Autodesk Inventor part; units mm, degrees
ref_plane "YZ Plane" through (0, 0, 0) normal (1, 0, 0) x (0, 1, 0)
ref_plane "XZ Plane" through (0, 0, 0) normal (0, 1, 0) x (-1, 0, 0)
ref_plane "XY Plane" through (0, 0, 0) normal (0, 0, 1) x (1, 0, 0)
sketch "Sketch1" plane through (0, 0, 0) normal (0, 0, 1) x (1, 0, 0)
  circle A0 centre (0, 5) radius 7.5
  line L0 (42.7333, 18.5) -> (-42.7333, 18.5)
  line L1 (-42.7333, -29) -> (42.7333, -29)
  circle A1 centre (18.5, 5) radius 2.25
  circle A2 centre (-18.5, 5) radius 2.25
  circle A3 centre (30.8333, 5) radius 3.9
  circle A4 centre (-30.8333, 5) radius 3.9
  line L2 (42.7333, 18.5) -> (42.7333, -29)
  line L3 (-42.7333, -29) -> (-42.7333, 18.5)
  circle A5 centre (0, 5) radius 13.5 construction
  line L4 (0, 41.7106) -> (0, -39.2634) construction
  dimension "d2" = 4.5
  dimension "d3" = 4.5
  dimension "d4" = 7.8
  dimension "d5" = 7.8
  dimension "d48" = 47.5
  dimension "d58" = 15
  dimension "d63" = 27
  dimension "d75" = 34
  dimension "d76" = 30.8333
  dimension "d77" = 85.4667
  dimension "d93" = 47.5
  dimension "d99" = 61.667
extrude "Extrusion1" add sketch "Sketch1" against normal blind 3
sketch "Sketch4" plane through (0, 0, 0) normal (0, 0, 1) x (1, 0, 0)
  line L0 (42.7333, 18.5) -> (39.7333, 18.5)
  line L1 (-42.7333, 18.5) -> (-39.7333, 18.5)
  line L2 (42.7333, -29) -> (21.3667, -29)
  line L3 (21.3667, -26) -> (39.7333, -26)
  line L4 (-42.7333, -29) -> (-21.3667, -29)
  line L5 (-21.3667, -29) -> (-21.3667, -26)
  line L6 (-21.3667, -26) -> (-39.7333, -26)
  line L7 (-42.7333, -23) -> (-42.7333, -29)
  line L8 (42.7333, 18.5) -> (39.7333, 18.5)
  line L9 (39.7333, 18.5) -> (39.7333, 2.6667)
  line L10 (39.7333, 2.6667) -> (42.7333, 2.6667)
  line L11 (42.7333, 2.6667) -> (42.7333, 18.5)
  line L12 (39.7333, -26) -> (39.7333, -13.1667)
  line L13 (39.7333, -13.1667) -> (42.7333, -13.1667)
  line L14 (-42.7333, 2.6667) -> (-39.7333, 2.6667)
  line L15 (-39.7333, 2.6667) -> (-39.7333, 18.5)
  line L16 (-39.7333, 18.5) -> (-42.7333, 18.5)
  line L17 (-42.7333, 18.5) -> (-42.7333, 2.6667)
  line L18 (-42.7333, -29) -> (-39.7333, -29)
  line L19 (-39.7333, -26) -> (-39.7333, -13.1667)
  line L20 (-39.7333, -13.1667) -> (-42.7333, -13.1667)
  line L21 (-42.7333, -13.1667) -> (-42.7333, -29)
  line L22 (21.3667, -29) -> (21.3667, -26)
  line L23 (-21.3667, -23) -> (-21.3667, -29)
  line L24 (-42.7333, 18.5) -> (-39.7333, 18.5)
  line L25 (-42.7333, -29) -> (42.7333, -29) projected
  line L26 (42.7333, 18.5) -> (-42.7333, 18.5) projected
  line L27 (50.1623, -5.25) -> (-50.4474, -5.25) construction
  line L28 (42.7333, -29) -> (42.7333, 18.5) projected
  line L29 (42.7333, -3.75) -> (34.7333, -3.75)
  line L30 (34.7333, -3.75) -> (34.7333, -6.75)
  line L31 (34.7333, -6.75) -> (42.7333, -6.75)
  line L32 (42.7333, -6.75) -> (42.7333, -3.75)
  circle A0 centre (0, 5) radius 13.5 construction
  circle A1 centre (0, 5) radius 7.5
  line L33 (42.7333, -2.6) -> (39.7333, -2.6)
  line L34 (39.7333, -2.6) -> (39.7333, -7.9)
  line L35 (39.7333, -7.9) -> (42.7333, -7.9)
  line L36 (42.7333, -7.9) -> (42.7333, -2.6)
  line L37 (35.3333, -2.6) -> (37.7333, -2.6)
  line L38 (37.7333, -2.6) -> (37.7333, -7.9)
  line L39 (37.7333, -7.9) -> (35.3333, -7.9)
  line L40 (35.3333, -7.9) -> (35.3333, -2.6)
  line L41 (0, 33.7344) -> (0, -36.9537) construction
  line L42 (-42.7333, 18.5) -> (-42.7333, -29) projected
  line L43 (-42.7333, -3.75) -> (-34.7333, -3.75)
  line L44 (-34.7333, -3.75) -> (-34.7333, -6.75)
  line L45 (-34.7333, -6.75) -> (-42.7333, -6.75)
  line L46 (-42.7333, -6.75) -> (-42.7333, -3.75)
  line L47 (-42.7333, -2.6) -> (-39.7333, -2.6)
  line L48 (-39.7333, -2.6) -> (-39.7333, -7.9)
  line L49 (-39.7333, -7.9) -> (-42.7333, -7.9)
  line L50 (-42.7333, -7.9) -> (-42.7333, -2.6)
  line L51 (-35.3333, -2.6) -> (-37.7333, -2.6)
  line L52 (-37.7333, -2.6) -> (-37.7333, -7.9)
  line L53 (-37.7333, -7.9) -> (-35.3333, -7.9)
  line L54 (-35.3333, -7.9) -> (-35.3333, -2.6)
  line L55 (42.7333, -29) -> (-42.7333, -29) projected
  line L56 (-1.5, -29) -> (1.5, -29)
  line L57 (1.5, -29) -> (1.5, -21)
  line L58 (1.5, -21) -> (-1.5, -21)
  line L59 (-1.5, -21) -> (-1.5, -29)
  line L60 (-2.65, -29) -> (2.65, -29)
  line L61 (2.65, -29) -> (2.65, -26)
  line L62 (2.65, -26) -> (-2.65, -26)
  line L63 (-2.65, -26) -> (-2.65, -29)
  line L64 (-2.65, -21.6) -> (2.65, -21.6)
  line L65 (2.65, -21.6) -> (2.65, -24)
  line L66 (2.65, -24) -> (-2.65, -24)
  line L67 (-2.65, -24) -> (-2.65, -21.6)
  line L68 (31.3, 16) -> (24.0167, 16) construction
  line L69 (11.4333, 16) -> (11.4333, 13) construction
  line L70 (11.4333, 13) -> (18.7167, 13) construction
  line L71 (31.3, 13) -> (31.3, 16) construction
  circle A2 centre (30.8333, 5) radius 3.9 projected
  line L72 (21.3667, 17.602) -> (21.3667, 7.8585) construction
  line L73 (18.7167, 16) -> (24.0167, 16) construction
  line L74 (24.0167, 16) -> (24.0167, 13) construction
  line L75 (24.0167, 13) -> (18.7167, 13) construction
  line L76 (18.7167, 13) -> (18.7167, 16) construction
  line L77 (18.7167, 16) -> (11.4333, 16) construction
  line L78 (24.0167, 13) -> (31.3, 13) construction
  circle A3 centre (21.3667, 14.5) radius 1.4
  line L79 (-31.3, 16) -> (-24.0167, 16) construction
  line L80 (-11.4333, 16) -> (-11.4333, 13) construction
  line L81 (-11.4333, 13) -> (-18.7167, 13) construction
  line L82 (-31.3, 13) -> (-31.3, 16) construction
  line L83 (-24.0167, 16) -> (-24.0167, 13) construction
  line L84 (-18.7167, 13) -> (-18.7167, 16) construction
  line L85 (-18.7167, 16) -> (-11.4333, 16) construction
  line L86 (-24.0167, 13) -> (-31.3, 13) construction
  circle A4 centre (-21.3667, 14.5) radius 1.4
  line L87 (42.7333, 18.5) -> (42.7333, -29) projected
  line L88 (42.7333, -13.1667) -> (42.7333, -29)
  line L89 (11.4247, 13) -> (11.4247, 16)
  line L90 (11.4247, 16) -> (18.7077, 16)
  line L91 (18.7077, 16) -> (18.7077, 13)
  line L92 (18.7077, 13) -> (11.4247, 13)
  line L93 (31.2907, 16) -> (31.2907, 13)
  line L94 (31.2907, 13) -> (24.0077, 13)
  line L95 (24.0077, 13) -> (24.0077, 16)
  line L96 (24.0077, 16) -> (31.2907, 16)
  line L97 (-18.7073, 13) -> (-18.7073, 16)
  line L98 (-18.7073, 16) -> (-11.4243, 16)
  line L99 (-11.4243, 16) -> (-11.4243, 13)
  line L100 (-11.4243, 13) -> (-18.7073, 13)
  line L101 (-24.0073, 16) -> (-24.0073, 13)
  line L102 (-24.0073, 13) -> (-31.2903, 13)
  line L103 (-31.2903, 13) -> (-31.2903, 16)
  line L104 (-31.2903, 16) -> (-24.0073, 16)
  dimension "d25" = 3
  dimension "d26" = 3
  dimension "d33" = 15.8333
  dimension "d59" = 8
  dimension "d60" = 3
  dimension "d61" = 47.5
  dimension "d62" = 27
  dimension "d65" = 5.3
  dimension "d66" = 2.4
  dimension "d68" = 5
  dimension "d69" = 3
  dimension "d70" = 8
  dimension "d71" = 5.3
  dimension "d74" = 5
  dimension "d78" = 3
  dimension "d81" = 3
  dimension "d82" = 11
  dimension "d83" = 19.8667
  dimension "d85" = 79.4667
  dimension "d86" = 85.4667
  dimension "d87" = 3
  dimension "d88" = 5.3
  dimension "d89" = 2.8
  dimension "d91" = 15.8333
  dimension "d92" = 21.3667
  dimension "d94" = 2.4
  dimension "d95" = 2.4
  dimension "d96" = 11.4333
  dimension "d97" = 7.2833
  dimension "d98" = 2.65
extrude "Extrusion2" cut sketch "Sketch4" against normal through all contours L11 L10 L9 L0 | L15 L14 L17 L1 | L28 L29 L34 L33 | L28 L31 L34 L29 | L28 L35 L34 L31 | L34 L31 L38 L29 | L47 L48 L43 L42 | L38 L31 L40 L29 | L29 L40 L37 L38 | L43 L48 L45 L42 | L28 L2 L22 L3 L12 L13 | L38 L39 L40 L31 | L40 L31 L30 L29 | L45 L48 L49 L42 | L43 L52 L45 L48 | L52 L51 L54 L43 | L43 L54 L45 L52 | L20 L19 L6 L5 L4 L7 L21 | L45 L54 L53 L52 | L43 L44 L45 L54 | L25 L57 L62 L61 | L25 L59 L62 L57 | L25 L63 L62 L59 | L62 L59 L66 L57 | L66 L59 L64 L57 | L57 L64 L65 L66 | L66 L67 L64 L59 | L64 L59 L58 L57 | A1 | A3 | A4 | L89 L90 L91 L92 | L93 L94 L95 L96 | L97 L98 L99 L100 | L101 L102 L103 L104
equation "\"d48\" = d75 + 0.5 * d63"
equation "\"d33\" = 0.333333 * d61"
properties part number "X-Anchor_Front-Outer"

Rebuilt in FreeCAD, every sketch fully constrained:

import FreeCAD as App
import Part
import Sketcher

V = App.Vector


def add_polygon(sketch, points):
    """Adds a closed chain of lines whose ends are joined by coincident constraints."""
    first, n = sketch.GeometryCount, len(points)
    for a, b in zip(points, points[1:] + points[:1]):
        sketch.addGeometry(Part.LineSegment(App.Vector(*a, 0), App.Vector(*b, 0)), False)
    for i in range(n):
        sketch.addConstraint(Sketcher.Constraint("Coincident", first + i, 2, first + (i + 1) % n, 1))

doc = App.newDocument("Part")
params = doc.addObject("Spreadsheet::Sheet", "Params")
for row, (alias, value) in enumerate([
    ("sketch1_diameter", "15 mm"),
    ("sketch1_diameter2", "7.8 mm"),
    ("sketch1_diameter3", "4.5 mm"),
    ("sketch1_height", "47.5 mm"),
    ("pad1_length", "3 mm"),
    ("sketch2_diameter", "2.8 mm"),
    ("sketch2_width", "3 mm"),
    ("sketch2_diameter2", "15 mm"),
    ("sketch2_width2", "2.4 mm"),
    ("sketch2_width3", "5.3 mm"),
], start=1):
    params.set(f"A{row}", alias)
    params.set(f"B{row}", "=" + value)
    params.setAlias(f"B{row}", alias)

body = doc.addObject("PartDesign::Body", "Body")

# Sketch on XY plane
sketch1 = doc.addObject("Sketcher::SketchObject", "Sketch")
body.addObject(sketch1)
sketch1.AttachmentSupport = (doc.XY_Plane, [""])
sketch1.MapMode = "FlatFace"
add_polygon(sketch1, [(42.7, -29), (42.7, 18.5), (-42.7, 18.5), (-42.7, -29)])  # lines 0-3
sketch1.addGeometry(Part.Circle(V(-30.8, 5, 0), V(0, 0, 1), 3.9), False)  # 4
sketch1.addGeometry(Part.Circle(V(-18.5, 5, 0), V(0, 0, 1), 2.2), False)  # 5
sketch1.addGeometry(Part.Circle(V(0, 5, 0), V(0, 0, 1), 7.5), False)  # 6
sketch1.addGeometry(Part.Circle(V(18.5, 5, 0), V(0, 0, 1), 2.2), False)  # 7
sketch1.addGeometry(Part.Circle(V(30.8, 5, 0), V(0, 0, 1), 3.9), False)  # 8
sketch1.addConstraint(Sketcher.Constraint("Vertical", 0))
sketch1.addConstraint(Sketcher.Constraint("Horizontal", 1))
sketch1.addConstraint(Sketcher.Constraint("Vertical", 2))
sketch1.addConstraint(Sketcher.Constraint("Horizontal", 3))
sketch1.addConstraint(Sketcher.Constraint("Equal", 5, 7))
sketch1.addConstraint(Sketcher.Constraint("Equal", 4, 8))
sketch1.addConstraint(Sketcher.Constraint("Symmetric", 5, 3, 7, 3, -2))
sketch1.addConstraint(Sketcher.Constraint("Symmetric", 4, 3, 8, 3, -2))
sketch1.addConstraint(Sketcher.Constraint("PointOnObject", 6, 3, -2))
sketch1.addConstraint(Sketcher.Constraint("Horizontal", 4, 3, 5, 3))
sketch1.addConstraint(Sketcher.Constraint("Horizontal", 5, 3, 6, 3))
sketch1.addConstraint(Sketcher.Constraint("Diameter", 6, 15.0))
sketch1.addConstraint(Sketcher.Constraint("Diameter", 4, 7.8))
sketch1.addConstraint(Sketcher.Constraint("Diameter", 5, 4.5))
sketch1.addConstraint(Sketcher.Constraint("DistanceY", 0, 1, 0, 2, 47.5))
sketch1.addConstraint(Sketcher.Constraint("DistanceY", 2, 2, 4, 3, 34.0))
sketch1.addConstraint(Sketcher.Constraint("DistanceX", 1, 2, 1, 1, 85.4666))
sketch1.addConstraint(Sketcher.Constraint("DistanceY", -1, 1, 4, 3, 5.0))
sketch1.addConstraint(Sketcher.Constraint("DistanceX", 5, 3, 7, 3, 37.0))
sketch1.addConstraint(Sketcher.Constraint("DistanceX", 4, 3, -1, 1, 30.8333))
sketch1.addConstraint(Sketcher.Constraint("DistanceX", 8, 3, 0, 2, 11.9))
sketch1.setExpression("Constraints[15]", "Params.sketch1_diameter")
sketch1.setExpression("Constraints[16]", "Params.sketch1_diameter2")
sketch1.setExpression("Constraints[17]", "Params.sketch1_diameter3")
sketch1.setExpression("Constraints[18]", "Params.sketch1_height")
pad1 = doc.addObject("PartDesign::Pad", "Pad")
body.addObject(pad1)
pad1.Profile = sketch1
pad1.setExpression("Length", "Params.pad1_length")
pad1.Reversed = True

# Sketch on XY plane
sketch2 = doc.addObject("Sketcher::SketchObject", "Sketch001")
body.addObject(sketch2)
sketch2.AttachmentSupport = (doc.XY_Plane, [""])
sketch2.MapMode = "FlatFace"
add_polygon(sketch2, [(42.7, 2.7), (42.7, 18.5), (39.7, 18.5), (39.7, 2.7)])  # lines 0-3
add_polygon(sketch2, [(-39.7, 2.7), (-39.7, 18.5), (-42.7, 18.5), (-42.7, 2.7)])  # lines 4-7
add_polygon(sketch2, [(42.7, -2.6), (39.7, -2.6), (39.7, -3.8), (37.7, -3.8), (37.7, -2.6), (35.3, -2.6), (35.3, -3.8), (34.7, -3.8), (34.7, -6.8), (35.3, -6.8), (35.3, -7.9), (37.7, -7.9), (37.7, -6.8), (39.7, -6.8), (39.7, -7.9), (42.7, -7.9)])  # lines 8-23
add_polygon(sketch2, [(-39.7, -2.6), (-42.7, -2.6), (-42.7, -7.9), (-39.7, -7.9), (-39.7, -6.8), (-37.7, -6.8), (-37.7, -7.9), (-35.3, -7.9), (-35.3, -6.8), (-34.7, -6.8), (-34.7, -3.8), (-35.3, -3.8), (-35.3, -2.6), (-37.7, -2.6), (-37.7, -3.8), (-39.7, -3.8)])  # lines 24-39
add_polygon(sketch2, [(42.7, -29), (42.7, -13.2), (39.7, -13.2), (39.7, -26), (21.4, -26), (21.4, -29)])  # lines 40-45
add_polygon(sketch2, [(-39.7, -13.2), (-42.7, -13.2), (-42.7, -29), (-21.4, -29), (-21.4, -26), (-39.7, -26)])  # lines 46-51
add_polygon(sketch2, [(2.6, -29), (2.6, -26), (1.5, -26), (1.5, -24), (2.6, -24), (2.6, -21.6), (1.5, -21.6), (1.5, -21), (-1.5, -21), (-1.5, -21.6), (-2.6, -21.6), (-2.6, -24), (-1.5, -24), (-1.5, -26), (-2.6, -26), (-2.6, -29)])  # lines 52-67
sketch2.addGeometry(Part.Circle(V(0, 5, 0), V(0, 0, 1), 7.5), False)  # 68
sketch2.addGeometry(Part.Circle(V(21.4, 14.5, 0), V(0, 0, 1), 1.4), False)  # 69
sketch2.addGeometry(Part.Circle(V(-21.4, 14.5, 0), V(0, 0, 1), 1.4), False)  # 70
add_polygon(sketch2, [(11.4, 16), (11.4, 13), (18.7, 13), (18.7, 16)])  # lines 71-74
add_polygon(sketch2, [(31.3, 13), (31.3, 16), (24, 16), (24, 13)])  # lines 75-78
add_polygon(sketch2, [(-18.7, 16), (-18.7, 13), (-11.4, 13), (-11.4, 16)])  # lines 79-82
add_polygon(sketch2, [(-24, 13), (-24, 16), (-31.3, 16), (-31.3, 13)])  # lines 83-86
sketch2.addConstraint(Sketcher.Constraint("Vertical", 0))
sketch2.addConstraint(Sketcher.Constraint("Horizontal", 1))
sketch2.addConstraint(Sketcher.Constraint("Vertical", 2))
sketch2.addConstraint(Sketcher.Constraint("Horizontal", 3))
sketch2.addConstraint(Sketcher.Constraint("Vertical", 4))
sketch2.addConstraint(Sketcher.Constraint("Horizontal", 5))
sketch2.addConstraint(Sketcher.Constraint("Vertical", 6))
sketch2.addConstraint(Sketcher.Constraint("Horizontal", 7))
sketch2.addConstraint(Sketcher.Constraint("Horizontal", 8))
sketch2.addConstraint(Sketcher.Constraint("Vertical", 9))
sketch2.addConstraint(Sketcher.Constraint("Horizontal", 10))
sketch2.addConstraint(Sketcher.Constraint("Vertical", 11))
sketch2.addConstraint(Sketcher.Constraint("Horizontal", 12))
sketch2.addConstraint(Sketcher.Constraint("Vertical", 13))
sketch2.addConstraint(Sketcher.Constraint("Horizontal", 14))
sketch2.addConstraint(Sketcher.Constraint("Vertical", 15))
sketch2.addConstraint(Sketcher.Constraint("Horizontal", 16))
sketch2.addConstraint(Sketcher.Constraint("Vertical", 17))
sketch2.addConstraint(Sketcher.Constraint("Horizontal", 18))
sketch2.addConstraint(Sketcher.Constraint("Vertical", 19))
sketch2.addConstraint(Sketcher.Constraint("Horizontal", 20))
sketch2.addConstraint(Sketcher.Constraint("Vertical", 21))
sketch2.addConstraint(Sketcher.Constraint("Horizontal", 22))
sketch2.addConstraint(Sketcher.Constraint("Vertical", 23))
sketch2.addConstraint(Sketcher.Constraint("Horizontal", 24))
sketch2.addConstraint(Sketcher.Constraint("Vertical", 25))
sketch2.addConstraint(Sketcher.Constraint("Horizontal", 26))
sketch2.addConstraint(Sketcher.Constraint("Vertical", 27))
sketch2.addConstraint(Sketcher.Constraint("Horizontal", 28))
sketch2.addConstraint(Sketcher.Constraint("Vertical", 29))
sketch2.addConstraint(Sketcher.Constraint("Horizontal", 30))
sketch2.addConstraint(Sketcher.Constraint("Vertical", 31))
sketch2.addConstraint(Sketcher.Constraint("Horizontal", 32))
sketch2.addConstraint(Sketcher.Constraint("Vertical", 33))
sketch2.addConstraint(Sketcher.Constraint("Horizontal", 34))
sketch2.addConstraint(Sketcher.Constraint("Vertical", 35))
sketch2.addConstraint(Sketcher.Constraint("Horizontal", 36))
sketch2.addConstraint(Sketcher.Constraint("Vertical", 37))
sketch2.addConstraint(Sketcher.Constraint("Horizontal", 38))
sketch2.addConstraint(Sketcher.Constraint("Vertical", 39))
sketch2.addConstraint(Sketcher.Constraint("Vertical", 40))
sketch2.addConstraint(Sketcher.Constraint("Horizontal", 41))
sketch2.addConstraint(Sketcher.Constraint("Vertical", 42))
sketch2.addConstraint(Sketcher.Constraint("Horizontal", 43))
sketch2.addConstraint(Sketcher.Constraint("Vertical", 44))
sketch2.addConstraint(Sketcher.Constraint("Horizontal", 45))
sketch2.addConstraint(Sketcher.Constraint("Horizontal", 46))
sketch2.addConstraint(Sketcher.Constraint("Vertical", 47))
sketch2.addConstraint(Sketcher.Constraint("Horizontal", 48))
sketch2.addConstraint(Sketcher.Constraint("Vertical", 49))
sketch2.addConstraint(Sketcher.Constraint("Horizontal", 50))
sketch2.addConstraint(Sketcher.Constraint("Vertical", 51))
sketch2.addConstraint(Sketcher.Constraint("Vertical", 52))
sketch2.addConstraint(Sketcher.Constraint("Horizontal", 53))
sketch2.addConstraint(Sketcher.Constraint("Vertical", 54))
sketch2.addConstraint(Sketcher.Constraint("Horizontal", 55))
sketch2.addConstraint(Sketcher.Constraint("Vertical", 56))
sketch2.addConstraint(Sketcher.Constraint("Horizontal", 57))
sketch2.addConstraint(Sketcher.Constraint("Vertical", 58))
sketch2.addConstraint(Sketcher.Constraint("Horizontal", 59))
sketch2.addConstraint(Sketcher.Constraint("Vertical", 60))
sketch2.addConstraint(Sketcher.Constraint("Horizontal", 61))
sketch2.addConstraint(Sketcher.Constraint("Vertical", 62))
sketch2.addConstraint(Sketcher.Constraint("Horizontal", 63))
sketch2.addConstraint(Sketcher.Constraint("Vertical", 64))
sketch2.addConstraint(Sketcher.Constraint("Horizontal", 65))
sketch2.addConstraint(Sketcher.Constraint("Vertical", 66))
sketch2.addConstraint(Sketcher.Constraint("Horizontal", 67))
sketch2.addConstraint(Sketcher.Constraint("Vertical", 71))
sketch2.addConstraint(Sketcher.Constraint("Horizontal", 72))
sketch2.addConstraint(Sketcher.Constraint("Vertical", 73))
sketch2.addConstraint(Sketcher.Constraint("Horizontal", 74))
sketch2.addConstraint(Sketcher.Constraint("Vertical", 75))
sketch2.addConstraint(Sketcher.Constraint("Horizontal", 76))
sketch2.addConstraint(Sketcher.Constraint("Vertical", 77))
sketch2.addConstraint(Sketcher.Constraint("Horizontal", 78))
sketch2.addConstraint(Sketcher.Constraint("Vertical", 79))
sketch2.addConstraint(Sketcher.Constraint("Horizontal", 80))
sketch2.addConstraint(Sketcher.Constraint("Vertical", 81))
sketch2.addConstraint(Sketcher.Constraint("Horizontal", 82))
sketch2.addConstraint(Sketcher.Constraint("Vertical", 83))
sketch2.addConstraint(Sketcher.Constraint("Horizontal", 84))
sketch2.addConstraint(Sketcher.Constraint("Vertical", 85))
sketch2.addConstraint(Sketcher.Constraint("Horizontal", 86))
sketch2.addConstraint(Sketcher.Constraint("Equal", 69, 70))
sketch2.addConstraint(Sketcher.Constraint("Symmetric", 69, 3, 70, 3, -2))
sketch2.addConstraint(Sketcher.Constraint("Symmetric", 1, 2, 4, 2, -2))
sketch2.addConstraint(Sketcher.Constraint("Symmetric", 3, 2, 6, 2, -2))
sketch2.addConstraint(Sketcher.Constraint("Symmetric", 23, 2, 24, 2, -2))
sketch2.addConstraint(Sketcher.Constraint("Symmetric", 21, 2, 26, 2, -2))
sketch2.addConstraint(Sketcher.Constraint("Symmetric", 19, 2, 28, 2, -2))
sketch2.addConstraint(Sketcher.Constraint("Symmetric", 17, 2, 30, 2, -2))
sketch2.addConstraint(Sketcher.Constraint("Symmetric", 15, 2, 32, 2, -2))
sketch2.addConstraint(Sketcher.Constraint("Symmetric", 13, 2, 34, 2, -2))
sketch2.addConstraint(Sketcher.Constraint("Symmetric", 11, 2, 36, 2, -2))
sketch2.addConstraint(Sketcher.Constraint("Symmetric", 9, 2, 38, 2, -2))
sketch2.addConstraint(Sketcher.Constraint("Symmetric", 40, 2, 46, 2, -2))
sketch2.addConstraint(Sketcher.Constraint("Symmetric", 44, 2, 48, 2, -2))
sketch2.addConstraint(Sketcher.Constraint("Symmetric", 42, 2, 50, 2, -2))
sketch2.addConstraint(Sketcher.Constraint("Symmetric", 57, 2, 60, 2, -2))
sketch2.addConstraint(Sketcher.Constraint("Symmetric", 55, 2, 62, 2, -2))
sketch2.addConstraint(Sketcher.Constraint("Symmetric", 53, 2, 64, 2, -2))
sketch2.addConstraint(Sketcher.Constraint("Symmetric", 72, 2, 79, 2, -2))
sketch2.addConstraint(Sketcher.Constraint("Symmetric", 74, 2, 81, 2, -2))
sketch2.addConstraint(Sketcher.Constraint("Symmetric", 76, 2, 83, 2, -2))
sketch2.addConstraint(Sketcher.Constraint("PointOnObject", 68, 3, -2))
sketch2.addConstraint(Sketcher.Constraint("Horizontal", 8, 2, 11, 2))
sketch2.addConstraint(Sketcher.Constraint("Horizontal", 10, 2, 13, 2))
sketch2.addConstraint(Sketcher.Constraint("Horizontal", 16, 2, 19, 2))
sketch2.addConstraint(Sketcher.Constraint("Horizontal", 18, 2, 21, 2))
sketch2.addConstraint(Sketcher.Constraint("Horizontal", 50, 2, 52, 2))
sketch2.addConstraint(Sketcher.Constraint("Horizontal", 48, 2, 66, 2))
sketch2.addConstraint(Sketcher.Constraint("Horizontal", 74, 2, 75, 2))
sketch2.addConstraint(Sketcher.Constraint("Horizontal", 72, 2, 77, 2))
sketch2.addConstraint(Sketcher.Constraint("Horizontal", 80, 2, 85, 2))
sketch2.addConstraint(Sketcher.Constraint("Vertical", 2, 2, 8, 2))
sketch2.addConstraint(Sketcher.Constraint("Vertical", 13, 2, 16, 2))
sketch2.addConstraint(Sketcher.Constraint("Vertical", 11, 2, 18, 2))
sketch2.addConstraint(Sketcher.Constraint("Vertical", 9, 2, 20, 2))
sketch2.addConstraint(Sketcher.Constraint("Vertical", 3, 2, 22, 2))
sketch2.addConstraint(Sketcher.Constraint("Vertical", 23, 2, 40, 2))
sketch2.addConstraint(Sketcher.Constraint("Vertical", 21, 2, 41, 2))
sketch2.addConstraint(Sketcher.Constraint("Vertical", 69, 3, 43, 2))
sketch2.addConstraint(Sketcher.Constraint("Vertical", 52, 2, 55, 2))
sketch2.addConstraint(Sketcher.Constraint("Vertical", 54, 2, 57, 2))
sketch2.addConstraint(Sketcher.Constraint("Vertical", 62, 2, 65, 2))
sketch2.addConstraint(Sketcher.Constraint("Equal", 46, 59))
sketch2.addConstraint(Sketcher.Constraint("Equal", 74, 76))
sketch2.addConstraint(Sketcher.Constraint("Equal", 82, 84))
sketch2.addConstraint(Sketcher.Constraint("Equal", 65, 9))
sketch2.addConstraint(Sketcher.Constraint("Equal", 59, 15))
sketch2.addConstraint(Sketcher.Constraint("Equal", 13, 17))
sketch2.addConstraint(Sketcher.Constraint("Equal", 6, 40))
sketch2.addConstraint(Sketcher.Constraint("Equal", 33, 44))
sketch2.addConstraint(Sketcher.Constraint("Equal", 38, 54))
sketch2.addConstraint(Sketcher.Constraint("Equal", 36, 56))
sketch2.addConstraint(Sketcher.Constraint("Equal", 34, 58))
sketch2.addConstraint(Sketcher.Constraint("Equal", 66, 71))
sketch2.addConstraint(Sketcher.Constraint("Diameter", 69, 2.8))
sketch2.addConstraint(Sketcher.Constraint("DistanceX", 1, 2, 1, 1, 3.0))
sketch2.addConstraint(Sketcher.Constraint("Diameter", 68, 15.0))
sketch2.addConstraint(Sketcher.Constraint("DistanceX", 12, 2, 12, 1, 2.4))
sketch2.addConstraint(Sketcher.Constraint("DistanceX", 67, 1, 67, 2, 5.3))
sketch2.addConstraint(Sketcher.Constraint("DistanceY", -1, 1, 68, 3, 5.0))
sketch2.addConstraint(Sketcher.Constraint("DistanceX", 10, 2, 10, 1, 2.0))
sketch2.addConstraint(Sketcher.Constraint("DistanceX", 72, 1, 72, 2, 7.283))
sketch2.addConstraint(Sketcher.Constraint("DistanceX", 14, 2, 14, 1, 0.6))
sketch2.addConstraint(Sketcher.Constraint("DistanceX", 45, 1, 45, 2, 21.3666))
sketch2.addConstraint(Sketcher.Constraint("DistanceY", 0, 1, 0, 2, 15.8333))
sketch2.addConstraint(Sketcher.Constraint("DistanceY", 42, 2, -1, 1, 26.0))
sketch2.addConstraint(Sketcher.Constraint("DistanceY", -1, 1, 71, 2, 13.0))
sketch2.addConstraint(Sketcher.Constraint("DistanceX", -1, 1, 69, 3, 21.3667))
sketch2.addConstraint(Sketcher.Constraint("DistanceY", -1, 1, 69, 3, 14.5))
sketch2.addConstraint(Sketcher.Constraint("DistanceY", -1, 1, 0, 2, 18.5))
sketch2.addConstraint(Sketcher.Constraint("DistanceY", 8, 2, -1, 1, 2.6))
sketch2.addConstraint(Sketcher.Constraint("DistanceX", -1, 1, 71, 2, 11.4247))
sketch2.addConstraint(Sketcher.Constraint("DistanceX", -1, 1, 75, 2, 31.2907))
sketch2.setExpression("Constraints[222]", "Params.sketch2_diameter")
sketch2.setExpression("Constraints[223]", "Params.sketch2_width")
sketch2.setExpression("Constraints[224]", "Params.sketch2_diameter2")
sketch2.setExpression("Constraints[225]", "Params.sketch2_width2")
sketch2.setExpression("Constraints[226]", "Params.sketch2_width3")
pocket1 = doc.addObject("PartDesign::Pocket", "Pocket")
body.addObject(pocket1)
pocket1.Profile = sketch2
pocket1.Type = "ThroughAll"

doc.recompute()
